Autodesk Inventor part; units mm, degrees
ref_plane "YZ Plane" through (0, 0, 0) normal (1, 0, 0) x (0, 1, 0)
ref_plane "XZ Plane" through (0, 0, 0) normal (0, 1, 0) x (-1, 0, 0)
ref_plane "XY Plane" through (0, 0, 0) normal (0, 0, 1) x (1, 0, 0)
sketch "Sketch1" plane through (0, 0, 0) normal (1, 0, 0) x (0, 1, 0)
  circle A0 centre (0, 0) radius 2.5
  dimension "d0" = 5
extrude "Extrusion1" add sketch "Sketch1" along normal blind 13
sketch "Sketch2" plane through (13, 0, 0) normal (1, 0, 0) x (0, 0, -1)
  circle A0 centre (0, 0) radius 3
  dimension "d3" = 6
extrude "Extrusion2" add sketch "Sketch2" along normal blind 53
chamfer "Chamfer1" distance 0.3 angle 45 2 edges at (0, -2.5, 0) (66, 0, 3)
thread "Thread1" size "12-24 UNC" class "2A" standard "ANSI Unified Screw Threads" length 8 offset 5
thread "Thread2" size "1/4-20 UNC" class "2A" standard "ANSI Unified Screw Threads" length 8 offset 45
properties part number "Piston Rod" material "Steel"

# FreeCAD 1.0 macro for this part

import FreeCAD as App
import Part
import Sketcher

V = App.Vector


def edges_at(feature, points):
    """Names of the edges that pass closest to the given points."""
    edges = feature.Shape.Edges
    near = lambda p: min(range(len(edges)), key=lambda i: edges[i].distToShape(Part.Vertex(*p))[0])
    return sorted({f"Edge{near(p) + 1}" for p in points})

doc = App.newDocument("Part")
body = doc.addObject("PartDesign::Body", "Body")

# Sketch on YZ plane
sketch1 = body.newObject("Sketcher::SketchObject", "Sketch")
sketch1.AttachmentSupport = (doc.getObject("YZ_Plane"), [""])
sketch1.MapMode = "FlatFace"
sketch1.addGeometry(Part.Circle(V(0, 0, 0), V(0, 0, 1), 2.5), False)
sketch1.addConstraint(Sketcher.Constraint("Coincident", 0, 3, -1, 1))
sketch1.addConstraint(Sketcher.Constraint("Diameter", 0, 5.0))
pad1 = body.newObject("PartDesign::Pad", "Pad")
pad1.Profile = sketch1
pad1.Length = 13

# Sketch on YZ plane
sketch2 = body.newObject("Sketcher::SketchObject", "Sketch001")
sketch2.AttachmentSupport = (doc.getObject("YZ_Plane"), [""])
sketch2.MapMode = "FlatFace"
sketch2.AttachmentOffset = App.Placement(V(0, 0, 13), App.Rotation())
sketch2.addGeometry(Part.Circle(V(0, 0, 0), V(0, 0, 1), 3), False)
sketch2.addConstraint(Sketcher.Constraint("Coincident", 0, 3, -1, 1))
sketch2.addConstraint(Sketcher.Constraint("Diameter", 0, 6.0))
pad2 = body.newObject("PartDesign::Pad", "Pad001")
pad2.Profile = sketch2
pad2.Length = 53
doc.recompute()

chamfer = body.newObject("PartDesign::Chamfer", "Chamfer")
chamfer.Base = (pad2, edges_at(pad2, [(0, -2.5, 0), (66, 0, 3)]))
chamfer.Size = 0.3

doc.recompute()
